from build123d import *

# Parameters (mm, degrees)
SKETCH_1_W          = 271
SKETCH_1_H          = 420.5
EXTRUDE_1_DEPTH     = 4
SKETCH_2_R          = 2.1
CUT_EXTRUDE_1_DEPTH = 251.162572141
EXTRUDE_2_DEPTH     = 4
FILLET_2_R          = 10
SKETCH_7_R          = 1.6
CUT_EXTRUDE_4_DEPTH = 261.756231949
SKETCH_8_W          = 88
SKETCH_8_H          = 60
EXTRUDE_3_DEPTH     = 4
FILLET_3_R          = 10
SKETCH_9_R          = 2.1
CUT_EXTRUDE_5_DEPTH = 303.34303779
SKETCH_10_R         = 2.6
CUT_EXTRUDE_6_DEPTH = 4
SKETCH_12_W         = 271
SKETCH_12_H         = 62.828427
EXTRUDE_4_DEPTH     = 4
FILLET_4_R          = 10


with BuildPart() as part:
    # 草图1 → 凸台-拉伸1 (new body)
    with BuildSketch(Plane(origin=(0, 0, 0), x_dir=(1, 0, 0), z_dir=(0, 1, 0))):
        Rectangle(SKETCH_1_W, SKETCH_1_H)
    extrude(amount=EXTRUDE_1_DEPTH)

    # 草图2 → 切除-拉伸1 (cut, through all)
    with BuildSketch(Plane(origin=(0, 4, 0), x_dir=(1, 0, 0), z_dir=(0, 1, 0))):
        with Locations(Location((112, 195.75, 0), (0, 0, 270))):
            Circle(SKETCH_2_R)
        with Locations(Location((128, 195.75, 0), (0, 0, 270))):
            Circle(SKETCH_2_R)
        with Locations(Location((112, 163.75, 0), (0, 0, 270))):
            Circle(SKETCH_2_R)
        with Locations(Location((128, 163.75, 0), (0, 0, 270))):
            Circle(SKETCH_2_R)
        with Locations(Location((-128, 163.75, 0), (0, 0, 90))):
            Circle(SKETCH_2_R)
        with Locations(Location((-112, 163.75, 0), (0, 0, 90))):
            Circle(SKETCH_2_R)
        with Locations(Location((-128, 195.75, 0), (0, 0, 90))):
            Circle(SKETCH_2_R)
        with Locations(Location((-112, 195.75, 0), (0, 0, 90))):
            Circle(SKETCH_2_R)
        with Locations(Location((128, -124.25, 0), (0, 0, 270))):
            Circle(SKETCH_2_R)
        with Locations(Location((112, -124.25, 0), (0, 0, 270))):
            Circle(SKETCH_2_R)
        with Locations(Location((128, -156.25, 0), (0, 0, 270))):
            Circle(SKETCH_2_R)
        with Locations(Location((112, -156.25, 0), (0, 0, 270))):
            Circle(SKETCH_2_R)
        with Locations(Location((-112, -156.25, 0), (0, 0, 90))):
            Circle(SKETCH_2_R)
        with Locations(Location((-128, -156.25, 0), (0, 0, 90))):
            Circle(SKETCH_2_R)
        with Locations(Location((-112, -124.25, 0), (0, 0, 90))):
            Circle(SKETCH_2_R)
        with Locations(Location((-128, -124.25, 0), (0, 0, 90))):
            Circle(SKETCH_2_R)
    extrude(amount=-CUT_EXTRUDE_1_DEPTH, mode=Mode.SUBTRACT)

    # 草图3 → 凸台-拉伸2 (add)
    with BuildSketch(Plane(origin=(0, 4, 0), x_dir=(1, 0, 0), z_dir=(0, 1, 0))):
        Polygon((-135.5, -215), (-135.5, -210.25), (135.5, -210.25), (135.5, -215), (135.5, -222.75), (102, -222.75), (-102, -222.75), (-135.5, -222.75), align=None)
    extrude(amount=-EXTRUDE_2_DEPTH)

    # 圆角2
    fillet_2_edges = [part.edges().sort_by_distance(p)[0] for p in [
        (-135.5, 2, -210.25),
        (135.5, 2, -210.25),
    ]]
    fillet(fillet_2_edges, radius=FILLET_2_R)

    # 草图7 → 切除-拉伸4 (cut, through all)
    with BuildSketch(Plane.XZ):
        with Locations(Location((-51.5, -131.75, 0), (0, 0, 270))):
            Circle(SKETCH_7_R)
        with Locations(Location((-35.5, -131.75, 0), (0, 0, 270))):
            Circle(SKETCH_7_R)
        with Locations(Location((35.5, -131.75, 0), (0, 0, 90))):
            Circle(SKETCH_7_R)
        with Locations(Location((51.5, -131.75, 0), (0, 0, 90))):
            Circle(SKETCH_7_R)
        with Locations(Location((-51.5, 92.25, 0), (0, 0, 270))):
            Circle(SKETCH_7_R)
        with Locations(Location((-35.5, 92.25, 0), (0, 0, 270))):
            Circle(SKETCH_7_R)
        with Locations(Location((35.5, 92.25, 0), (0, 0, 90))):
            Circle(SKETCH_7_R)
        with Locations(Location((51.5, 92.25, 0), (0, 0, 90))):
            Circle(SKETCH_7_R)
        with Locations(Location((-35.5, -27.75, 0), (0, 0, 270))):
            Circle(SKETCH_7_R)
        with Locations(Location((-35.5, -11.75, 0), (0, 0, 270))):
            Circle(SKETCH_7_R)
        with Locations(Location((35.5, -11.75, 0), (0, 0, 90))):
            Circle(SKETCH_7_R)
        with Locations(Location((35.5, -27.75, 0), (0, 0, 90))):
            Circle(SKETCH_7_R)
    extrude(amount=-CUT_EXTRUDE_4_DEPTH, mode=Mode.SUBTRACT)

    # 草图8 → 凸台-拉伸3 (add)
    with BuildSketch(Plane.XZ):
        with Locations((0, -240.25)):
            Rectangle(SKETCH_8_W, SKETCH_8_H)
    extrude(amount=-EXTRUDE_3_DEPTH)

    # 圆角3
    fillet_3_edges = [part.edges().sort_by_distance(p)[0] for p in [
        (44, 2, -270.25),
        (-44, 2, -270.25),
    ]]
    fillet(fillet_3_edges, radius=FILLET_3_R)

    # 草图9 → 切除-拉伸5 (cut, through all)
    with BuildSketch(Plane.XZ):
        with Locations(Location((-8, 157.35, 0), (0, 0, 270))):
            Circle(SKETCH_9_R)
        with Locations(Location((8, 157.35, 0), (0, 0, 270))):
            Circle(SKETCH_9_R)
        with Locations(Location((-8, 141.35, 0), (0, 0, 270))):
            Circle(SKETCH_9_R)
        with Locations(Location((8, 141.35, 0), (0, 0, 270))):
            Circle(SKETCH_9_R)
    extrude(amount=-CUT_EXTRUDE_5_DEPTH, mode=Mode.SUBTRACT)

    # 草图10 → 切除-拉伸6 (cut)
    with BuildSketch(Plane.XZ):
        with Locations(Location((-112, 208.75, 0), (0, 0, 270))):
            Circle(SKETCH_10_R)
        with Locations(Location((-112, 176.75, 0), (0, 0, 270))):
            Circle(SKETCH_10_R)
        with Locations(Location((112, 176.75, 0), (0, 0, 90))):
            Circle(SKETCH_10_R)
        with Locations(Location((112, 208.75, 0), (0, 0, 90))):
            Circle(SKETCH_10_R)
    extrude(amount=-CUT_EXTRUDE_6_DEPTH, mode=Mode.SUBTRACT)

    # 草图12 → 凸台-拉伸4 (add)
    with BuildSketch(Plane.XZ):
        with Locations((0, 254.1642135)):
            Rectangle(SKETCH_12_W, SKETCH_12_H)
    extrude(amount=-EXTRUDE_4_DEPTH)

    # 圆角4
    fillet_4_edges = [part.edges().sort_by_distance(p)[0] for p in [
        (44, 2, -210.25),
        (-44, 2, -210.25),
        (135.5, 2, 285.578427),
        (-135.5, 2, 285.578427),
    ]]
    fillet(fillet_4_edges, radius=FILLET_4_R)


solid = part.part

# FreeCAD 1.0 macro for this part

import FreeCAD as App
import Part
import Sketcher
from FreeCAD import Vector


def edges_at(feature, points):
    """Names of the edges that pass closest to the given points."""
    edges = feature.Shape.Edges
    near = lambda p: min(range(len(edges)), key=lambda i: edges[i].distToShape(Part.Vertex(*p))[0])
    return sorted({f"Edge{near(p) + 1}" for p in points})

doc = App.newDocument("Part")
body = doc.addObject("PartDesign::Body", "Body")

# Sketch on XZ plane
sketch1 = body.newObject("Sketcher::SketchObject", "Sketch")
sketch1.AttachmentSupport = (doc.getObject("XZ_Plane"), [""])
sketch1.MapMode = "FlatFace"
sketch1.addGeometry([
    Part.LineSegment(Vector(-136, -210, 0), Vector(-136, 210, 0)),
    Part.LineSegment(Vector(-136, 210, 0), Vector(136, 210, 0)),
    Part.LineSegment(Vector(136, 210, 0), Vector(136, -210, 0)),
    Part.LineSegment(Vector(136, -210, 0), Vector(-136, -210, 0)),
], False)
sketch1.addConstraint([
    Sketcher.Constraint("Coincident", 0, 2, 1, 1),
    Sketcher.Constraint("Coincident", 1, 2, 2, 1),
    Sketcher.Constraint("Coincident", 2, 2, 3, 1),
    Sketcher.Constraint("Coincident", 3, 2, 0, 1),
    Sketcher.Constraint("Vertical", 0),
    Sketcher.Constraint("Horizontal", 1),
    Sketcher.Constraint("Vertical", 2),
    Sketcher.Constraint("Horizontal", 3),
    Sketcher.Constraint("Symmetric", 0, 2, 2, 2, -1, 1),
    Sketcher.Constraint("DistanceX", 1, 1, 1, 2, 271.0),
    Sketcher.Constraint("DistanceY", 0, 1, 0, 2, 420.5),
])
pad1 = body.newObject("PartDesign::Pad", "Pad")
pad1.Profile = sketch1
pad1.Length = 4
pad1.Reversed = True

# Sketch on XZ plane
sketch2 = body.newObject("Sketcher::SketchObject", "Sketch001")
sketch2.AttachmentSupport = (doc.getObject("XZ_Plane"), [""])
sketch2.MapMode = "FlatFace"
sketch2.AttachmentOffset = App.Placement(Vector(0, 0, -4), App.Rotation())
sketch2.addGeometry([
    Part.Circle(Vector(112, -195.8, 0), Vector(0, 0, 1), 2.1),  # 0
    Part.Circle(Vector(128, -195.8, 0), Vector(0, 0, 1), 2.1),  # 1
    Part.Circle(Vector(112, -163.8, 0), Vector(0, 0, 1), 2.1),  # 2
    Part.Circle(Vector(128, -163.8, 0), Vector(0, 0, 1), 2.1),  # 3
    Part.Circle(Vector(-128, -163.8, 0), Vector(0, 0, 1), 2.1),  # 4
    Part.Circle(Vector(-112, -163.8, 0), Vector(0, 0, 1), 2.1),  # 5
    Part.Circle(Vector(-128, -195.8, 0), Vector(0, 0, 1), 2.1),  # 6
    Part.Circle(Vector(-112, -195.8, 0), Vector(0, 0, 1), 2.1),  # 7
    Part.Circle(Vector(128, 124.2, 0), Vector(0, 0, 1), 2.1),  # 8
    Part.Circle(Vector(112, 124.2, 0), Vector(0, 0, 1), 2.1),  # 9
    Part.Circle(Vector(128, 156.2, 0), Vector(0, 0, 1), 2.1),  # 10
    Part.Circle(Vector(112, 156.2, 0), Vector(0, 0, 1), 2.1),  # 11
    Part.Circle(Vector(-112, 156.2, 0), Vector(0, 0, 1), 2.1),  # 12
    Part.Circle(Vector(-128, 156.2, 0), Vector(0, 0, 1), 2.1),  # 13
    Part.Circle(Vector(-112, 124.2, 0), Vector(0, 0, 1), 2.1),  # 14
    Part.Circle(Vector(-128, 124.2, 0), Vector(0, 0, 1), 2.1),  # 15
], False)
sketch2.addConstraint([
    Sketcher.Constraint("Equal", 0, 1),
    Sketcher.Constraint("Equal", 1, 2),
    Sketcher.Constraint("Equal", 2, 3),
    Sketcher.Constraint("Equal", 3, 4),
    Sketcher.Constraint("Equal", 4, 5),
    Sketcher.Constraint("Equal", 5, 6),
    Sketcher.Constraint("Equal", 6, 7),
    Sketcher.Constraint("Equal", 7, 8),
    Sketcher.Constraint("Equal", 8, 9),
    Sketcher.Constraint("Equal", 9, 10),
    Sketcher.Constraint("Equal", 10, 11),
    Sketcher.Constraint("Equal", 11, 12),
    Sketcher.Constraint("Equal", 12, 13),
    Sketcher.Constraint("Equal", 13, 14),
    Sketcher.Constraint("Equal", 14, 15),
    Sketcher.Constraint("Symmetric", 3, 3, 4, 3, -2),
    Sketcher.Constraint("Symmetric", 2, 3, 5, 3, -2),
    Sketcher.Constraint("Symmetric", 1, 3, 6, 3, -2),
    Sketcher.Constraint("Symmetric", 0, 3, 7, 3, -2),
    Sketcher.Constraint("Symmetric", 11, 3, 12, 3, -2),
    Sketcher.Constraint("Symmetric", 10, 3, 13, 3, -2),
    Sketcher.Constraint("Symmetric", 9, 3, 14, 3, -2),
    Sketcher.Constraint("Symmetric", 8, 3, 15, 3, -2),
    Sketcher.Constraint("Horizontal", 0, 3, 1, 3),
    Sketcher.Constraint("Horizontal", 2, 3, 3, 3),
    Sketcher.Constraint("Horizontal", 8, 3, 9, 3),
    Sketcher.Constraint("Horizontal", 10, 3, 11, 3),
    Sketcher.Constraint("Vertical", 0, 3, 2, 3),
    Sketcher.Constraint("Vertical", 1, 3, 3, 3),
    Sketcher.Constraint("Vertical", 3, 3, 8, 3),
    Sketcher.Constraint("Vertical", 2, 3, 9, 3),
    Sketcher.Constraint("Vertical", 8, 3, 10, 3),
    Sketcher.Constraint("Vertical", 9, 3, 11, 3),
    Sketcher.Constraint("Diameter", 0, 4.2),
    Sketcher.Constraint("DistanceX", -1, 1, 0, 3, 112.0),
    Sketcher.Constraint("DistanceX", -1, 1, 1, 3, 128.0),
    Sketcher.Constraint("DistanceY", 0, 3, 2, 3, 32.0),
    Sketcher.Constraint("DistanceY", 3, 3, 8, 3, 288.0),
    Sketcher.Constraint("DistanceY", 8, 3, 10, 3, 32.0),
    Sketcher.Constraint("DistanceY", 0, 3, -1, 1, 195.75),
])
pocket1 = body.newObject("PartDesign::Pocket", "Pocket")
pocket1.Profile = sketch2
pocket1.Type = "ThroughAll"
pocket1.Reversed = True

# Sketch on XZ plane
sketch3 = body.newObject("Sketcher::SketchObject", "Sketch002")
sketch3.AttachmentSupport = (doc.getObject("XZ_Plane"), [""])
sketch3.MapMode = "FlatFace"
sketch3.AttachmentOffset = App.Placement(Vector(0, 0, -4), App.Rotation())
sketch3.addGeometry([
    Part.LineSegment(Vector(-136, 210, 0), Vector(-136, 223, 0)),
    Part.LineSegment(Vector(-136, 223, 0), Vector(136, 223, 0)),
    Part.LineSegment(Vector(136, 223, 0), Vector(136, 210, 0)),
    Part.LineSegment(Vector(136, 210, 0), Vector(-136, 210, 0)),
], False)
sketch3.addConstraint([
    Sketcher.Constraint("Coincident", 0, 2, 1, 1),
    Sketcher.Constraint("Coincident", 1, 2, 2, 1),
    Sketcher.Constraint("Coincident", 2, 2, 3, 1),
    Sketcher.Constraint("Coincident", 3, 2, 0, 1),
    Sketcher.Constraint("Vertical", 0),
    Sketcher.Constraint("Horizontal", 1),
    Sketcher.Constraint("Vertical", 2),
    Sketcher.Constraint("Horizontal", 3),
    Sketcher.Constraint("DistanceX", 1, 1, 1, 2, 271.0),
    Sketcher.Constraint("DistanceY", 0, 1, 0, 2, 12.5),
    Sketcher.Constraint("DistanceX", 0, 2, -1, 1, 135.5),
    Sketcher.Constraint("DistanceY", -1, 1, 0, 2, 222.75),
])
pad2 = body.newObject("PartDesign::Pad", "Pad001")
pad2.Profile = sketch3
pad2.Length = 4
doc.recompute()

fillet = body.newObject("PartDesign::Fillet", "Fillet")
fillet.Base = (pad2, edges_at(pad2, [(-135.5, 2, -210.25), (135.5, 2, -210.25)]))
fillet.Radius = 10

# Sketch on XZ plane
sketch4 = body.newObject("Sketcher::SketchObject", "Sketch003")
sketch4.AttachmentSupport = (doc.getObject("XZ_Plane"), [""])
sketch4.MapMode = "FlatFace"
sketch4.addGeometry([
    Part.Circle(Vector(-51.5, -131.8, 0), Vector(0, 0, 1), 1.6),  # 0
    Part.Circle(Vector(-35.5, -131.8, 0), Vector(0, 0, 1), 1.6),  # 1
    Part.Circle(Vector(35.5, -131.8, 0), Vector(0, 0, 1), 1.6),  # 2
    Part.Circle(Vector(51.5, -131.8, 0), Vector(0, 0, 1), 1.6),  # 3
    Part.Circle(Vector(-51.5, 92.2, 0), Vector(0, 0, 1), 1.6),  # 4
    Part.Circle(Vector(-35.5, 92.2, 0), Vector(0, 0, 1), 1.6),  # 5
    Part.Circle(Vector(35.5, 92.2, 0), Vector(0, 0, 1), 1.6),  # 6
    Part.Circle(Vector(51.5, 92.2, 0), Vector(0, 0, 1), 1.6),  # 7
    Part.Circle(Vector(-35.5, -27.8, 0), Vector(0, 0, 1), 1.6),  # 8
    Part.Circle(Vector(-35.5, -11.8, 0), Vector(0, 0, 1), 1.6),  # 9
    Part.Circle(Vector(35.5, -11.8, 0), Vector(0, 0, 1), 1.6),  # 10
    Part.Circle(Vector(35.5, -27.8, 0), Vector(0, 0, 1), 1.6),  # 11
], False)
sketch4.addConstraint([
    Sketcher.Constraint("Equal", 0, 1),
    Sketcher.Constraint("Equal", 1, 2),
    Sketcher.Constraint("Equal", 2, 3),
    Sketcher.Constraint("Equal", 3, 4),
    Sketcher.Constraint("Equal", 4, 5),
    Sketcher.Constraint("Equal", 5, 6),
    Sketcher.Constraint("Equal", 6, 7),
    Sketcher.Constraint("Equal", 7, 8),
    Sketcher.Constraint("Equal", 8, 9),
    Sketcher.Constraint("Equal", 9, 10),
    Sketcher.Constraint("Equal", 10, 11),
    Sketcher.Constraint("Symmetric", 1, 3, 2, 3, -2),
    Sketcher.Constraint("Symmetric", 0, 3, 3, 3, -2),
    Sketcher.Constraint("Symmetric", 5, 3, 6, 3, -2),
    Sketcher.Constraint("Symmetric", 4, 3, 7, 3, -2),
    Sketcher.Constraint("Symmetric", 9, 3, 10, 3, -2),
    Sketcher.Constraint("Symmetric", 8, 3, 11, 3, -2),
    Sketcher.Constraint("Horizontal", 0, 3, 1, 3),
    Sketcher.Constraint("Horizontal", 4, 3, 5, 3),
    Sketcher.Constraint("Vertical", 0, 3, 4, 3),
    Sketcher.Constraint("Vertical", 1, 3, 5, 3),
    Sketcher.Constraint("Vertical", 5, 3, 8, 3),
    Sketcher.Constraint("Vertical", 8, 3, 9, 3),
    Sketcher.Constraint("Diameter", 0, 3.2),
    Sketcher.Constraint("DistanceX", 0, 3, 1, 3, 16.0),
    Sketcher.Constraint("DistanceX", 1, 3, 2, 3, 71.0),
    Sketcher.Constraint("DistanceY", 0, 3, 4, 3, 224.0),
    Sketcher.Constraint("DistanceY", 1, 3, 8, 3, 104.0),
    Sketcher.Constraint("DistanceY", 8, 3, 9, 3, 16.0),
    Sketcher.Constraint("DistanceY", 0, 3, -1, 1, 131.75),
])
pocket2 = body.newObject("PartDesign::Pocket", "Pocket001")
pocket2.Profile = sketch4
pocket2.Type = "ThroughAll"

# Sketch on XZ plane
sketch5 = body.newObject("Sketcher::SketchObject", "Sketch004")
sketch5.AttachmentSupport = (doc.getObject("XZ_Plane"), [""])
sketch5.MapMode = "FlatFace"
sketch5.addGeometry([
    Part.LineSegment(Vector(-44, -210, 0), Vector(-44, -270, 0)),
    Part.LineSegment(Vector(-44, -270, 0), Vector(44, -270, 0)),
    Part.LineSegment(Vector(44, -270, 0), Vector(44, -210, 0)),
    Part.LineSegment(Vector(44, -210, 0), Vector(-44, -210, 0)),
], False)
sketch5.addConstraint([
    Sketcher.Constraint("Coincident", 0, 2, 1, 1),
    Sketcher.Constraint("Coincident", 1, 2, 2, 1),
    Sketcher.Constraint("Coincident", 2, 2, 3, 1),
    Sketcher.Constraint("Coincident", 3, 2, 0, 1),
    Sketcher.Constraint("Vertical", 0),
    Sketcher.Constraint("Horizontal", 1),
    Sketcher.Constraint("Vertical", 2),
    Sketcher.Constraint("Horizontal", 3),
    Sketcher.Constraint("DistanceX", 1, 1, 1, 2, 88.0),
    Sketcher.Constraint("DistanceY", 0, 2, 0, 1, 60.0),
    Sketcher.Constraint("DistanceX", 0, 2, -1, 1, 44.0),
    Sketcher.Constraint("DistanceY", 0, 2, -1, 1, 270.25),
])
pad3 = body.newObject("PartDesign::Pad", "Pad002")
pad3.Profile = sketch5
pad3.Length = 4
pad3.Reversed = True
doc.recompute()

fillet2 = body.newObject("PartDesign::Fillet", "Fillet001")
fillet2.Base = (pad3, edges_at(pad3, [(44, 2, -270.25), (-44, 2, -270.25)]))
fillet2.Radius = 10

# Sketch on XZ plane
sketch6 = body.newObject("Sketcher::SketchObject", "Sketch005")
sketch6.AttachmentSupport = (doc.getObject("XZ_Plane"), [""])
sketch6.MapMode = "FlatFace"
sketch6.addGeometry([
    Part.Circle(Vector(-8, 157.3, 0), Vector(0, 0, 1), 2.1),
    Part.Circle(Vector(8, 157.3, 0), Vector(0, 0, 1), 2.1),
    Part.Circle(Vector(-8, 141.3, 0), Vector(0, 0, 1), 2.1),
    Part.Circle(Vector(8, 141.3, 0), Vector(0, 0, 1), 2.1),
], False)
sketch6.addConstraint([
    Sketcher.Constraint("Equal", 0, 1),
    Sketcher.Constraint("Equal", 1, 2),
    Sketcher.Constraint("Equal", 2, 3),
    Sketcher.Constraint("Symmetric", 0, 3, 1, 3, -2),
    Sketcher.Constraint("Symmetric", 2, 3, 3, 3, -2),
    Sketcher.Constraint("Vertical", 0, 3, 2, 3),
    Sketcher.Constraint("Diameter", 0, 4.2),
    Sketcher.Constraint("DistanceX", 0, 3, -1, 1, 8.0),
    Sketcher.Constraint("DistanceY", 2, 3, 0, 3, 16.0),
    Sketcher.Constraint("DistanceY", -1, 1, 0, 3, 157.35),
])
pocket3 = body.newObject("PartDesign::Pocket", "Pocket002")
pocket3.Profile = sketch6
pocket3.Type = "ThroughAll"

# Sketch on XZ plane
sketch7 = body.newObject("Sketcher::SketchObject", "Sketch006")
sketch7.AttachmentSupport = (doc.getObject("XZ_Plane"), [""])
sketch7.MapMode = "FlatFace"
sketch7.addGeometry([
    Part.Circle(Vector(-112, 208.8, 0), Vector(0, 0, 1), 2.6),
    Part.Circle(Vector(-112, 176.8, 0), Vector(0, 0, 1), 2.6),
    Part.Circle(Vector(112, 176.8, 0), Vector(0, 0, 1), 2.6),
    Part.Circle(Vector(112, 208.8, 0), Vector(0, 0, 1), 2.6),
], False)
sketch7.addConstraint([
    Sketcher.Constraint("Equal", 0, 1),
    Sketcher.Constraint("Equal", 1, 2),
    Sketcher.Constraint("Equal", 2, 3),
    Sketcher.Constraint("Symmetric", 1, 3, 2, 3, -2),
    Sketcher.Constraint("Symmetric", 0, 3, 3, 3, -2),
    Sketcher.Constraint("Vertical", 0, 3, 1, 3),
    Sketcher.Constraint("Diameter", 0, 5.2),
    Sketcher.Constraint("DistanceX", 0, 3, -1, 1, 112.0),
    Sketcher.Constraint("DistanceY", 1, 3, 0, 3, 32.0),
    Sketcher.Constraint("DistanceY", -1, 1, 0, 3, 208.75),
])
pocket4 = body.newObject("PartDesign::Pocket", "Pocket003")
pocket4.Profile = sketch7
pocket4.Length = 4

# Sketch on XZ plane
sketch8 = body.newObject("Sketcher::SketchObject", "Sketch007")
sketch8.AttachmentSupport = (doc.getObject("XZ_Plane"), [""])
sketch8.MapMode = "FlatFace"
sketch8.addGeometry([
    Part.LineSegment(Vector(-136, 286, 0), Vector(-136, 223, 0)),
    Part.LineSegment(Vector(-136, 223, 0), Vector(136, 223, 0)),
    Part.LineSegment(Vector(136, 223, 0), Vector(136, 286, 0)),
    Part.LineSegment(Vector(136, 286, 0), Vector(-136, 286, 0)),
], False)
sketch8.addConstraint([
    Sketcher.Constraint("Coincident", 0, 2, 1, 1),
    Sketcher.Constraint("Coincident", 1, 2, 2, 1),
    Sketcher.Constraint("Coincident", 2, 2, 3, 1),
    Sketcher.Constraint("Coincident", 3, 2, 0, 1),
    Sketcher.Constraint("Vertical", 0),
    Sketcher.Constraint("Horizontal", 1),
    Sketcher.Constraint("Vertical", 2),
    Sketcher.Constraint("Horizontal", 3),
    Sketcher.Constraint("DistanceX", 1, 1, 1, 2, 271.0),
    Sketcher.Constraint("DistanceX", 0, 2, -1, 1, 135.5),
    Sketcher.Constraint("DistanceY", -1, 1, 0, 2, 222.75),
    Sketcher.Constraint("DistanceY", 0, 2, 0, 1, 62.828427),
])
pad4 = body.newObject("PartDesign::Pad", "Pad003")
pad4.Profile = sketch8
pad4.Length = 4
pad4.Reversed = True
doc.recompute()

fillet3 = body.newObject("PartDesign::Fillet", "Fillet002")
fillet3.Base = (pad4, edges_at(pad4, [
    (44, 2, -210.25),
    (-44, 2, -210.25),
    (135.5, 2, 285.578),
    (-135.5, 2, 285.578),
]))
fillet3.Radius = 10

doc.recompute()
